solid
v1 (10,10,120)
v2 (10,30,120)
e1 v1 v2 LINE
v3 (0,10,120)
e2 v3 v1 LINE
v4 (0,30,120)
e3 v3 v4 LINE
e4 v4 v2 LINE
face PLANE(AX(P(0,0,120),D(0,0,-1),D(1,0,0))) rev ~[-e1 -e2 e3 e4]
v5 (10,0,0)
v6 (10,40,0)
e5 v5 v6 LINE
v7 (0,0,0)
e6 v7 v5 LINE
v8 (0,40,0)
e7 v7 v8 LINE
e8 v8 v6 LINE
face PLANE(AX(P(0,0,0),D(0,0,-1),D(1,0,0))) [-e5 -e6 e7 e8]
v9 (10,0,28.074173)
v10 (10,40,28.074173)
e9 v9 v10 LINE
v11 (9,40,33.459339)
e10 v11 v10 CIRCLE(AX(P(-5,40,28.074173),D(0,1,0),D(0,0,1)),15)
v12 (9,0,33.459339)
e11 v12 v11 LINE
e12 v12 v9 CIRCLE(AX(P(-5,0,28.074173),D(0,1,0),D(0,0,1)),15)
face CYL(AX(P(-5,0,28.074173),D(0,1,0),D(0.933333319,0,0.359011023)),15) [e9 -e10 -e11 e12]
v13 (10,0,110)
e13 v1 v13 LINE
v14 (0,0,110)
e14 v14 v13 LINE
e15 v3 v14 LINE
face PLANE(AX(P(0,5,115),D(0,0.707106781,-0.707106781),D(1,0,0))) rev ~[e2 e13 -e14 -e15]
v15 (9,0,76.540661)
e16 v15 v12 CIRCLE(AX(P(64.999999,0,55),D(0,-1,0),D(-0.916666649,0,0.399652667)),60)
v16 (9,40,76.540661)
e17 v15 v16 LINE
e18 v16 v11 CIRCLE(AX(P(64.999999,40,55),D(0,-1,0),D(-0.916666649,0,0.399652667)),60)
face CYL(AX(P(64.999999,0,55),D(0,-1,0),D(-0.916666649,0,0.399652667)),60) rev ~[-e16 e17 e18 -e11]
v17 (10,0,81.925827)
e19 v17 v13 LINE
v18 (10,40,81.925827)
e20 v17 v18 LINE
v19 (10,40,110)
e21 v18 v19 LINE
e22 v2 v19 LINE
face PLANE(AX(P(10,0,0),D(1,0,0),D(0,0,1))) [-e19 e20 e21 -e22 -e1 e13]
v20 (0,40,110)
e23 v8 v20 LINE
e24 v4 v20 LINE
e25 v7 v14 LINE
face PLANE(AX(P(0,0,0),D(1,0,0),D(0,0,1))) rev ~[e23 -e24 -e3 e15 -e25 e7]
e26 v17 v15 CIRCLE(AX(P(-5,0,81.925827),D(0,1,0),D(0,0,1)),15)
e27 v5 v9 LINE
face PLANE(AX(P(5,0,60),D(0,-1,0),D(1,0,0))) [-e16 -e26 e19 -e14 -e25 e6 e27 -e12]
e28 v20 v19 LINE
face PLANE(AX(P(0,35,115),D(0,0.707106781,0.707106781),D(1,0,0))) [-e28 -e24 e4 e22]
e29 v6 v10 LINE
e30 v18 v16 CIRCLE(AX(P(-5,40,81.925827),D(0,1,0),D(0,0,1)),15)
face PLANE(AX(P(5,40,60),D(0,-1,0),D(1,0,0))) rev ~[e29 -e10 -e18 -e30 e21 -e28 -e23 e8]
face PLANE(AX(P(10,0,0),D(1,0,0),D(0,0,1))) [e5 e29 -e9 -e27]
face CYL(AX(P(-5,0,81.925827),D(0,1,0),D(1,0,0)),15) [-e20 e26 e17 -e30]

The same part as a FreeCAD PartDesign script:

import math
import FreeCAD as App
import Part
import Sketcher
from FreeCAD import Vector
Q = App.Units.Quantity


def edges_at(feature, points):
    """Names of the edges that pass closest to the given points."""
    edges = feature.Shape.Edges
    near = lambda p: min(range(len(edges)), key=lambda i: edges[i].distToShape(Part.Vertex(*p))[0])
    return sorted({f"Edge{near(p) + 1}" for p in points})

doc = App.newDocument("Part")
body = doc.addObject("PartDesign::Body", "Body")

# Sketch on XZ plane
sketch1 = body.newObject("Sketcher::SketchObject", "Sketch")
sketch1.AttachmentSupport = (doc.getObject("XZ_Plane"), [""])
sketch1.MapMode = "FlatFace"
sketch1.addGeometry([
    Part.LineSegment(Vector(0, 120, 0), Vector(0, 0, 0)),
    Part.LineSegment(Vector(0, 0, 0), Vector(10, 0, 0)),
    Part.LineSegment(Vector(10, 0, 0), Vector(10, 120, 0)),
    Part.LineSegment(Vector(10, 120, 0), Vector(0, 120, 0)),
], False)
sketch1.addConstraint([
    Sketcher.Constraint("Coincident", 0, 2, 1, 1),
    Sketcher.Constraint("Coincident", 1, 2, 2, 1),
    Sketcher.Constraint("Coincident", 2, 2, 3, 1),
    Sketcher.Constraint("Coincident", 3, 2, 0, 1),
    Sketcher.Constraint("Vertical", 0),
    Sketcher.Constraint("Horizontal", 1),
    Sketcher.Constraint("Vertical", 2),
    Sketcher.Constraint("Horizontal", 3),
    Sketcher.Constraint("Coincident", 0, 2, -1, 1),
    Sketcher.Constraint("DistanceX", 1, 1, 1, 2, Q("10 mm")),
    Sketcher.Constraint("DistanceY", 0, 2, 0, 1, Q("120 mm")),
])
pad1 = body.newObject("PartDesign::Pad", "Pad")
pad1.Profile = sketch1
pad1.Length = 40
pad1.Reversed = True
doc.recompute()

chamfer = body.newObject("PartDesign::Chamfer", "Chamfer")
chamfer.Base = (pad1, edges_at(pad1, [(5, 0, 120), (5, 40, 120)]))
chamfer.Size = 10

# Sketch on XZ plane
sketch2 = body.newObject("Sketcher::SketchObject", "Sketch001")
sketch2.AttachmentSupport = (doc.getObject("XZ_Plane"), [""])
sketch2.MapMode = "FlatFace"
sketch2.addGeometry([
    Part.ArcOfCircle(Part.Circle(Vector(65, 55, 0), Vector(0, 0, 1), 60), math.radians(156), math.radians(204)),
    Part.LineSegment(Vector(10, 31, 0), Vector(10, 79, 0)),
], False)
sketch2.addConstraint([
    Sketcher.Constraint("Coincident", 0, 1, 1, 2),
    Sketcher.Constraint("Coincident", 1, 1, 0, 2),
    Sketcher.Constraint("Vertical", 1),
    Sketcher.Constraint("Radius", 0, Q("60 mm")),
    Sketcher.Constraint("DistanceX", -1, 1, 0, 3, Q("64.999999 mm")),
    Sketcher.Constraint("DistanceY", -1, 1, 0, 3, Q("55 mm")),
    Sketcher.Constraint("DistanceX", -1, 1, 0, 1, Q("10 mm")),
])
pocket1 = body.newObject("PartDesign::Pocket", "Pocket")
pocket1.Profile = sketch2
pocket1.Type = "ThroughAll"
doc.recompute()

fillet = body.newObject("PartDesign::Fillet", "Fillet")
fillet.Base = (pocket1, edges_at(pocket1, [(10, 20, 31.021), (10, 20, 78.979)]))
fillet.Radius = 15

doc.recompute()
